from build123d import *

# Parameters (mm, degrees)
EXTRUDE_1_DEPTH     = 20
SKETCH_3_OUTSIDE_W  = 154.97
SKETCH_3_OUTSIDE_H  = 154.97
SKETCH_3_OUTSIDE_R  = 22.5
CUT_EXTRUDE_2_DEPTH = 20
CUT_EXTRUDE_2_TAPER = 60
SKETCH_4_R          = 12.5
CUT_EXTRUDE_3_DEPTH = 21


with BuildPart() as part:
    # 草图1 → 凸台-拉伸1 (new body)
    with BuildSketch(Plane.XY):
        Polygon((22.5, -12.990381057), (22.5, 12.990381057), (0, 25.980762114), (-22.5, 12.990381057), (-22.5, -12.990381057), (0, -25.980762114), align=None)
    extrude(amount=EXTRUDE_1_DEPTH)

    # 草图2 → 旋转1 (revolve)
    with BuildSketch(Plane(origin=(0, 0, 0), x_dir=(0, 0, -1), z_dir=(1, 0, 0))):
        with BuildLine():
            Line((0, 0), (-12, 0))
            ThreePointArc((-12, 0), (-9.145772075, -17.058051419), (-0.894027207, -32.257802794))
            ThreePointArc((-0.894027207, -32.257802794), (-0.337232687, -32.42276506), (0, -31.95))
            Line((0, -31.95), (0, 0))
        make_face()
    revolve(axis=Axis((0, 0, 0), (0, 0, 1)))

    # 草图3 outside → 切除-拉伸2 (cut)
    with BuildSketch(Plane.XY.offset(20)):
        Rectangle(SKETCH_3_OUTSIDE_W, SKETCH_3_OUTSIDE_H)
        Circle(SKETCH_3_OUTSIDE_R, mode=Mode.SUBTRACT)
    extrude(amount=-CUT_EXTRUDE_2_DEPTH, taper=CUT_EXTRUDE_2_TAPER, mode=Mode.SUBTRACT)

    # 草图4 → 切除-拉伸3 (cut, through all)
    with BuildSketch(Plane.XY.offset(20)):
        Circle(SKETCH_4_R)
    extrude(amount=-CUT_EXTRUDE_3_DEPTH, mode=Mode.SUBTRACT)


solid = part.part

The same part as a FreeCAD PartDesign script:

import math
import FreeCAD as App
import Part
import Sketcher
Q = App.Units.Quantity


def add_polygon(sketch, points):
    """Adds a closed chain of lines whose ends are joined by coincident constraints."""
    first, n = sketch.GeometryCount, len(points)
    for a, b in zip(points, points[1:] + points[:1]):
        sketch.addGeometry(Part.LineSegment(App.Vector(*a, 0), App.Vector(*b, 0)), False)
    for i in range(n):
        sketch.addConstraint(Sketcher.Constraint("Coincident", first + i, 2, first + (i + 1) % n, 1))

doc = App.newDocument("Part")
body = doc.addObject("PartDesign::Body", "Body")

# Sketch on XY plane
sketch1 = body.newObject("Sketcher::SketchObject", "Sketch")
sketch1.AttachmentSupport = (doc.getObject("XY_Plane"), [""])
sketch1.MapMode = "FlatFace"
add_polygon(sketch1, [(22, -13), (22, 13), (0, 26), (-22, 13), (-22, -13), (0, -26)])  # lines 0-5
sketch1.addConstraint([
    Sketcher.Constraint("Vertical", 0),
    Sketcher.Constraint("Vertical", 3),
    Sketcher.Constraint("Symmetric", 0, 2, 3, 2, -1, 1),
    Sketcher.Constraint("Symmetric", 1, 2, 4, 2, -1, 1),
    Sketcher.Constraint("PointOnObject", 1, 2, -2),
    Sketcher.Constraint("Parallel", 2, 5),
    Sketcher.Constraint("Horizontal", 0, 2, 2, 2),
    Sketcher.Constraint("Angle", 1, Q("150 deg")),
    Sketcher.Constraint("DistanceX", 2, 2, 0, 2, Q("45 mm")),
    Sketcher.Constraint("DistanceY", 0, 1, 0, 2, Q("25.980762 mm")),
])
pad1 = body.newObject("PartDesign::Pad", "Pad")
pad1.Profile = sketch1
pad1.Length = 20

# Sketch on YZ plane
sketch2 = body.newObject("Sketcher::SketchObject", "Sketch001")
sketch2.AttachmentSupport = (doc.getObject("YZ_Plane"), [""])
sketch2.MapMode = "FlatFace"
sketch2.addGeometry([
    Part.LineSegment(App.Vector(0, 0, 0), App.Vector(0, 12, 0)),
    Part.ArcOfCircle(Part.Circle(App.Vector(0, -40.4, 0), App.Vector(0, 0, 1), 52.4), math.radians(90), math.radians(128)),
    Part.ArcOfCircle(Part.Circle(App.Vector(-31.9, 0.5, 0), App.Vector(0, 0, 1), 0.5), math.radians(128), math.radians(270)),
    Part.LineSegment(App.Vector(-31.9, 0, 0), App.Vector(0, 0, 0)),
], False)
sketch2.addConstraint([
    Sketcher.Constraint("Coincident", 0, 2, 1, 1),
    Sketcher.Constraint("Tangent", 1, 2, 2, 1),
    Sketcher.Constraint("Tangent", 2, 2, 3, 1),
    Sketcher.Constraint("Coincident", 3, 2, 0, 1),
    Sketcher.Constraint("Vertical", 0),
    Sketcher.Constraint("Horizontal", 3),
    Sketcher.Constraint("Coincident", 3, 2, -1, 1),
    Sketcher.Constraint("PointOnObject", 1, 3, -2),
    Sketcher.Constraint("Radius", 2, Q("0.5 mm")),
    Sketcher.Constraint("DistanceY", 0, 1, 0, 2, Q("12 mm")),
    Sketcher.Constraint("DistanceX", 3, 1, 3, 2, Q("31.95 mm")),
])
revolution = body.newObject("PartDesign::Revolution", "Revolution")
revolution.Profile = sketch2
revolution.ReferenceAxis = (sketch2, ["V_Axis"])
revolution.Angle = 360

# Sketch on XY plane
sketch3 = body.newObject("Sketcher::SketchObject", "Sketch002")
sketch3.AttachmentSupport = (doc.getObject("XY_Plane"), [""])
sketch3.MapMode = "FlatFace"
sketch3.AttachmentOffset = App.Placement(App.Vector(0, 0, 20), App.Rotation())
add_polygon(sketch3, [(-77, 77), (-77, -77), (77, -77), (77, 77)])  # lines 0-3
sketch3.addGeometry(Part.Circle(App.Vector(0, 0, 0), App.Vector(0, 0, 1), 22), False)  # 4
sketch3.addConstraint([
    Sketcher.Constraint("Vertical", 0),
    Sketcher.Constraint("Horizontal", 1),
    Sketcher.Constraint("Vertical", 2),
    Sketcher.Constraint("Horizontal", 3),
    Sketcher.Constraint("Coincident", 4, 3, -1, 1),
    Sketcher.Constraint("Symmetric", 0, 2, 2, 2, -1, 1),
    Sketcher.Constraint("Equal", 3, 0),
    Sketcher.Constraint("Diameter", 4, Q("45 mm")),
    Sketcher.Constraint("DistanceX", 1, 1, 1, 2, Q("154.97 mm")),
])
pocket1 = body.newObject("PartDesign::Pocket", "Pocket")
pocket1.Profile = sketch3
pocket1.Length = 20
pocket1.TaperAngle = 60

# Sketch on XY plane
sketch4 = body.newObject("Sketcher::SketchObject", "Sketch003")
sketch4.AttachmentSupport = (doc.getObject("XY_Plane"), [""])
sketch4.MapMode = "FlatFace"
sketch4.AttachmentOffset = App.Placement(App.Vector(0, 0, 20), App.Rotation())
sketch4.addGeometry(Part.Circle(App.Vector(0, 0, 0), App.Vector(0, 0, 1), 12), False)
sketch4.addConstraint([
    Sketcher.Constraint("Coincident", 0, 3, -1, 1),
    Sketcher.Constraint("Diameter", 0, Q("25 mm")),
])
pocket2 = body.newObject("PartDesign::Pocket", "Pocket001")
pocket2.Profile = sketch4
pocket2.Type = "ThroughAll"

doc.recompute()
